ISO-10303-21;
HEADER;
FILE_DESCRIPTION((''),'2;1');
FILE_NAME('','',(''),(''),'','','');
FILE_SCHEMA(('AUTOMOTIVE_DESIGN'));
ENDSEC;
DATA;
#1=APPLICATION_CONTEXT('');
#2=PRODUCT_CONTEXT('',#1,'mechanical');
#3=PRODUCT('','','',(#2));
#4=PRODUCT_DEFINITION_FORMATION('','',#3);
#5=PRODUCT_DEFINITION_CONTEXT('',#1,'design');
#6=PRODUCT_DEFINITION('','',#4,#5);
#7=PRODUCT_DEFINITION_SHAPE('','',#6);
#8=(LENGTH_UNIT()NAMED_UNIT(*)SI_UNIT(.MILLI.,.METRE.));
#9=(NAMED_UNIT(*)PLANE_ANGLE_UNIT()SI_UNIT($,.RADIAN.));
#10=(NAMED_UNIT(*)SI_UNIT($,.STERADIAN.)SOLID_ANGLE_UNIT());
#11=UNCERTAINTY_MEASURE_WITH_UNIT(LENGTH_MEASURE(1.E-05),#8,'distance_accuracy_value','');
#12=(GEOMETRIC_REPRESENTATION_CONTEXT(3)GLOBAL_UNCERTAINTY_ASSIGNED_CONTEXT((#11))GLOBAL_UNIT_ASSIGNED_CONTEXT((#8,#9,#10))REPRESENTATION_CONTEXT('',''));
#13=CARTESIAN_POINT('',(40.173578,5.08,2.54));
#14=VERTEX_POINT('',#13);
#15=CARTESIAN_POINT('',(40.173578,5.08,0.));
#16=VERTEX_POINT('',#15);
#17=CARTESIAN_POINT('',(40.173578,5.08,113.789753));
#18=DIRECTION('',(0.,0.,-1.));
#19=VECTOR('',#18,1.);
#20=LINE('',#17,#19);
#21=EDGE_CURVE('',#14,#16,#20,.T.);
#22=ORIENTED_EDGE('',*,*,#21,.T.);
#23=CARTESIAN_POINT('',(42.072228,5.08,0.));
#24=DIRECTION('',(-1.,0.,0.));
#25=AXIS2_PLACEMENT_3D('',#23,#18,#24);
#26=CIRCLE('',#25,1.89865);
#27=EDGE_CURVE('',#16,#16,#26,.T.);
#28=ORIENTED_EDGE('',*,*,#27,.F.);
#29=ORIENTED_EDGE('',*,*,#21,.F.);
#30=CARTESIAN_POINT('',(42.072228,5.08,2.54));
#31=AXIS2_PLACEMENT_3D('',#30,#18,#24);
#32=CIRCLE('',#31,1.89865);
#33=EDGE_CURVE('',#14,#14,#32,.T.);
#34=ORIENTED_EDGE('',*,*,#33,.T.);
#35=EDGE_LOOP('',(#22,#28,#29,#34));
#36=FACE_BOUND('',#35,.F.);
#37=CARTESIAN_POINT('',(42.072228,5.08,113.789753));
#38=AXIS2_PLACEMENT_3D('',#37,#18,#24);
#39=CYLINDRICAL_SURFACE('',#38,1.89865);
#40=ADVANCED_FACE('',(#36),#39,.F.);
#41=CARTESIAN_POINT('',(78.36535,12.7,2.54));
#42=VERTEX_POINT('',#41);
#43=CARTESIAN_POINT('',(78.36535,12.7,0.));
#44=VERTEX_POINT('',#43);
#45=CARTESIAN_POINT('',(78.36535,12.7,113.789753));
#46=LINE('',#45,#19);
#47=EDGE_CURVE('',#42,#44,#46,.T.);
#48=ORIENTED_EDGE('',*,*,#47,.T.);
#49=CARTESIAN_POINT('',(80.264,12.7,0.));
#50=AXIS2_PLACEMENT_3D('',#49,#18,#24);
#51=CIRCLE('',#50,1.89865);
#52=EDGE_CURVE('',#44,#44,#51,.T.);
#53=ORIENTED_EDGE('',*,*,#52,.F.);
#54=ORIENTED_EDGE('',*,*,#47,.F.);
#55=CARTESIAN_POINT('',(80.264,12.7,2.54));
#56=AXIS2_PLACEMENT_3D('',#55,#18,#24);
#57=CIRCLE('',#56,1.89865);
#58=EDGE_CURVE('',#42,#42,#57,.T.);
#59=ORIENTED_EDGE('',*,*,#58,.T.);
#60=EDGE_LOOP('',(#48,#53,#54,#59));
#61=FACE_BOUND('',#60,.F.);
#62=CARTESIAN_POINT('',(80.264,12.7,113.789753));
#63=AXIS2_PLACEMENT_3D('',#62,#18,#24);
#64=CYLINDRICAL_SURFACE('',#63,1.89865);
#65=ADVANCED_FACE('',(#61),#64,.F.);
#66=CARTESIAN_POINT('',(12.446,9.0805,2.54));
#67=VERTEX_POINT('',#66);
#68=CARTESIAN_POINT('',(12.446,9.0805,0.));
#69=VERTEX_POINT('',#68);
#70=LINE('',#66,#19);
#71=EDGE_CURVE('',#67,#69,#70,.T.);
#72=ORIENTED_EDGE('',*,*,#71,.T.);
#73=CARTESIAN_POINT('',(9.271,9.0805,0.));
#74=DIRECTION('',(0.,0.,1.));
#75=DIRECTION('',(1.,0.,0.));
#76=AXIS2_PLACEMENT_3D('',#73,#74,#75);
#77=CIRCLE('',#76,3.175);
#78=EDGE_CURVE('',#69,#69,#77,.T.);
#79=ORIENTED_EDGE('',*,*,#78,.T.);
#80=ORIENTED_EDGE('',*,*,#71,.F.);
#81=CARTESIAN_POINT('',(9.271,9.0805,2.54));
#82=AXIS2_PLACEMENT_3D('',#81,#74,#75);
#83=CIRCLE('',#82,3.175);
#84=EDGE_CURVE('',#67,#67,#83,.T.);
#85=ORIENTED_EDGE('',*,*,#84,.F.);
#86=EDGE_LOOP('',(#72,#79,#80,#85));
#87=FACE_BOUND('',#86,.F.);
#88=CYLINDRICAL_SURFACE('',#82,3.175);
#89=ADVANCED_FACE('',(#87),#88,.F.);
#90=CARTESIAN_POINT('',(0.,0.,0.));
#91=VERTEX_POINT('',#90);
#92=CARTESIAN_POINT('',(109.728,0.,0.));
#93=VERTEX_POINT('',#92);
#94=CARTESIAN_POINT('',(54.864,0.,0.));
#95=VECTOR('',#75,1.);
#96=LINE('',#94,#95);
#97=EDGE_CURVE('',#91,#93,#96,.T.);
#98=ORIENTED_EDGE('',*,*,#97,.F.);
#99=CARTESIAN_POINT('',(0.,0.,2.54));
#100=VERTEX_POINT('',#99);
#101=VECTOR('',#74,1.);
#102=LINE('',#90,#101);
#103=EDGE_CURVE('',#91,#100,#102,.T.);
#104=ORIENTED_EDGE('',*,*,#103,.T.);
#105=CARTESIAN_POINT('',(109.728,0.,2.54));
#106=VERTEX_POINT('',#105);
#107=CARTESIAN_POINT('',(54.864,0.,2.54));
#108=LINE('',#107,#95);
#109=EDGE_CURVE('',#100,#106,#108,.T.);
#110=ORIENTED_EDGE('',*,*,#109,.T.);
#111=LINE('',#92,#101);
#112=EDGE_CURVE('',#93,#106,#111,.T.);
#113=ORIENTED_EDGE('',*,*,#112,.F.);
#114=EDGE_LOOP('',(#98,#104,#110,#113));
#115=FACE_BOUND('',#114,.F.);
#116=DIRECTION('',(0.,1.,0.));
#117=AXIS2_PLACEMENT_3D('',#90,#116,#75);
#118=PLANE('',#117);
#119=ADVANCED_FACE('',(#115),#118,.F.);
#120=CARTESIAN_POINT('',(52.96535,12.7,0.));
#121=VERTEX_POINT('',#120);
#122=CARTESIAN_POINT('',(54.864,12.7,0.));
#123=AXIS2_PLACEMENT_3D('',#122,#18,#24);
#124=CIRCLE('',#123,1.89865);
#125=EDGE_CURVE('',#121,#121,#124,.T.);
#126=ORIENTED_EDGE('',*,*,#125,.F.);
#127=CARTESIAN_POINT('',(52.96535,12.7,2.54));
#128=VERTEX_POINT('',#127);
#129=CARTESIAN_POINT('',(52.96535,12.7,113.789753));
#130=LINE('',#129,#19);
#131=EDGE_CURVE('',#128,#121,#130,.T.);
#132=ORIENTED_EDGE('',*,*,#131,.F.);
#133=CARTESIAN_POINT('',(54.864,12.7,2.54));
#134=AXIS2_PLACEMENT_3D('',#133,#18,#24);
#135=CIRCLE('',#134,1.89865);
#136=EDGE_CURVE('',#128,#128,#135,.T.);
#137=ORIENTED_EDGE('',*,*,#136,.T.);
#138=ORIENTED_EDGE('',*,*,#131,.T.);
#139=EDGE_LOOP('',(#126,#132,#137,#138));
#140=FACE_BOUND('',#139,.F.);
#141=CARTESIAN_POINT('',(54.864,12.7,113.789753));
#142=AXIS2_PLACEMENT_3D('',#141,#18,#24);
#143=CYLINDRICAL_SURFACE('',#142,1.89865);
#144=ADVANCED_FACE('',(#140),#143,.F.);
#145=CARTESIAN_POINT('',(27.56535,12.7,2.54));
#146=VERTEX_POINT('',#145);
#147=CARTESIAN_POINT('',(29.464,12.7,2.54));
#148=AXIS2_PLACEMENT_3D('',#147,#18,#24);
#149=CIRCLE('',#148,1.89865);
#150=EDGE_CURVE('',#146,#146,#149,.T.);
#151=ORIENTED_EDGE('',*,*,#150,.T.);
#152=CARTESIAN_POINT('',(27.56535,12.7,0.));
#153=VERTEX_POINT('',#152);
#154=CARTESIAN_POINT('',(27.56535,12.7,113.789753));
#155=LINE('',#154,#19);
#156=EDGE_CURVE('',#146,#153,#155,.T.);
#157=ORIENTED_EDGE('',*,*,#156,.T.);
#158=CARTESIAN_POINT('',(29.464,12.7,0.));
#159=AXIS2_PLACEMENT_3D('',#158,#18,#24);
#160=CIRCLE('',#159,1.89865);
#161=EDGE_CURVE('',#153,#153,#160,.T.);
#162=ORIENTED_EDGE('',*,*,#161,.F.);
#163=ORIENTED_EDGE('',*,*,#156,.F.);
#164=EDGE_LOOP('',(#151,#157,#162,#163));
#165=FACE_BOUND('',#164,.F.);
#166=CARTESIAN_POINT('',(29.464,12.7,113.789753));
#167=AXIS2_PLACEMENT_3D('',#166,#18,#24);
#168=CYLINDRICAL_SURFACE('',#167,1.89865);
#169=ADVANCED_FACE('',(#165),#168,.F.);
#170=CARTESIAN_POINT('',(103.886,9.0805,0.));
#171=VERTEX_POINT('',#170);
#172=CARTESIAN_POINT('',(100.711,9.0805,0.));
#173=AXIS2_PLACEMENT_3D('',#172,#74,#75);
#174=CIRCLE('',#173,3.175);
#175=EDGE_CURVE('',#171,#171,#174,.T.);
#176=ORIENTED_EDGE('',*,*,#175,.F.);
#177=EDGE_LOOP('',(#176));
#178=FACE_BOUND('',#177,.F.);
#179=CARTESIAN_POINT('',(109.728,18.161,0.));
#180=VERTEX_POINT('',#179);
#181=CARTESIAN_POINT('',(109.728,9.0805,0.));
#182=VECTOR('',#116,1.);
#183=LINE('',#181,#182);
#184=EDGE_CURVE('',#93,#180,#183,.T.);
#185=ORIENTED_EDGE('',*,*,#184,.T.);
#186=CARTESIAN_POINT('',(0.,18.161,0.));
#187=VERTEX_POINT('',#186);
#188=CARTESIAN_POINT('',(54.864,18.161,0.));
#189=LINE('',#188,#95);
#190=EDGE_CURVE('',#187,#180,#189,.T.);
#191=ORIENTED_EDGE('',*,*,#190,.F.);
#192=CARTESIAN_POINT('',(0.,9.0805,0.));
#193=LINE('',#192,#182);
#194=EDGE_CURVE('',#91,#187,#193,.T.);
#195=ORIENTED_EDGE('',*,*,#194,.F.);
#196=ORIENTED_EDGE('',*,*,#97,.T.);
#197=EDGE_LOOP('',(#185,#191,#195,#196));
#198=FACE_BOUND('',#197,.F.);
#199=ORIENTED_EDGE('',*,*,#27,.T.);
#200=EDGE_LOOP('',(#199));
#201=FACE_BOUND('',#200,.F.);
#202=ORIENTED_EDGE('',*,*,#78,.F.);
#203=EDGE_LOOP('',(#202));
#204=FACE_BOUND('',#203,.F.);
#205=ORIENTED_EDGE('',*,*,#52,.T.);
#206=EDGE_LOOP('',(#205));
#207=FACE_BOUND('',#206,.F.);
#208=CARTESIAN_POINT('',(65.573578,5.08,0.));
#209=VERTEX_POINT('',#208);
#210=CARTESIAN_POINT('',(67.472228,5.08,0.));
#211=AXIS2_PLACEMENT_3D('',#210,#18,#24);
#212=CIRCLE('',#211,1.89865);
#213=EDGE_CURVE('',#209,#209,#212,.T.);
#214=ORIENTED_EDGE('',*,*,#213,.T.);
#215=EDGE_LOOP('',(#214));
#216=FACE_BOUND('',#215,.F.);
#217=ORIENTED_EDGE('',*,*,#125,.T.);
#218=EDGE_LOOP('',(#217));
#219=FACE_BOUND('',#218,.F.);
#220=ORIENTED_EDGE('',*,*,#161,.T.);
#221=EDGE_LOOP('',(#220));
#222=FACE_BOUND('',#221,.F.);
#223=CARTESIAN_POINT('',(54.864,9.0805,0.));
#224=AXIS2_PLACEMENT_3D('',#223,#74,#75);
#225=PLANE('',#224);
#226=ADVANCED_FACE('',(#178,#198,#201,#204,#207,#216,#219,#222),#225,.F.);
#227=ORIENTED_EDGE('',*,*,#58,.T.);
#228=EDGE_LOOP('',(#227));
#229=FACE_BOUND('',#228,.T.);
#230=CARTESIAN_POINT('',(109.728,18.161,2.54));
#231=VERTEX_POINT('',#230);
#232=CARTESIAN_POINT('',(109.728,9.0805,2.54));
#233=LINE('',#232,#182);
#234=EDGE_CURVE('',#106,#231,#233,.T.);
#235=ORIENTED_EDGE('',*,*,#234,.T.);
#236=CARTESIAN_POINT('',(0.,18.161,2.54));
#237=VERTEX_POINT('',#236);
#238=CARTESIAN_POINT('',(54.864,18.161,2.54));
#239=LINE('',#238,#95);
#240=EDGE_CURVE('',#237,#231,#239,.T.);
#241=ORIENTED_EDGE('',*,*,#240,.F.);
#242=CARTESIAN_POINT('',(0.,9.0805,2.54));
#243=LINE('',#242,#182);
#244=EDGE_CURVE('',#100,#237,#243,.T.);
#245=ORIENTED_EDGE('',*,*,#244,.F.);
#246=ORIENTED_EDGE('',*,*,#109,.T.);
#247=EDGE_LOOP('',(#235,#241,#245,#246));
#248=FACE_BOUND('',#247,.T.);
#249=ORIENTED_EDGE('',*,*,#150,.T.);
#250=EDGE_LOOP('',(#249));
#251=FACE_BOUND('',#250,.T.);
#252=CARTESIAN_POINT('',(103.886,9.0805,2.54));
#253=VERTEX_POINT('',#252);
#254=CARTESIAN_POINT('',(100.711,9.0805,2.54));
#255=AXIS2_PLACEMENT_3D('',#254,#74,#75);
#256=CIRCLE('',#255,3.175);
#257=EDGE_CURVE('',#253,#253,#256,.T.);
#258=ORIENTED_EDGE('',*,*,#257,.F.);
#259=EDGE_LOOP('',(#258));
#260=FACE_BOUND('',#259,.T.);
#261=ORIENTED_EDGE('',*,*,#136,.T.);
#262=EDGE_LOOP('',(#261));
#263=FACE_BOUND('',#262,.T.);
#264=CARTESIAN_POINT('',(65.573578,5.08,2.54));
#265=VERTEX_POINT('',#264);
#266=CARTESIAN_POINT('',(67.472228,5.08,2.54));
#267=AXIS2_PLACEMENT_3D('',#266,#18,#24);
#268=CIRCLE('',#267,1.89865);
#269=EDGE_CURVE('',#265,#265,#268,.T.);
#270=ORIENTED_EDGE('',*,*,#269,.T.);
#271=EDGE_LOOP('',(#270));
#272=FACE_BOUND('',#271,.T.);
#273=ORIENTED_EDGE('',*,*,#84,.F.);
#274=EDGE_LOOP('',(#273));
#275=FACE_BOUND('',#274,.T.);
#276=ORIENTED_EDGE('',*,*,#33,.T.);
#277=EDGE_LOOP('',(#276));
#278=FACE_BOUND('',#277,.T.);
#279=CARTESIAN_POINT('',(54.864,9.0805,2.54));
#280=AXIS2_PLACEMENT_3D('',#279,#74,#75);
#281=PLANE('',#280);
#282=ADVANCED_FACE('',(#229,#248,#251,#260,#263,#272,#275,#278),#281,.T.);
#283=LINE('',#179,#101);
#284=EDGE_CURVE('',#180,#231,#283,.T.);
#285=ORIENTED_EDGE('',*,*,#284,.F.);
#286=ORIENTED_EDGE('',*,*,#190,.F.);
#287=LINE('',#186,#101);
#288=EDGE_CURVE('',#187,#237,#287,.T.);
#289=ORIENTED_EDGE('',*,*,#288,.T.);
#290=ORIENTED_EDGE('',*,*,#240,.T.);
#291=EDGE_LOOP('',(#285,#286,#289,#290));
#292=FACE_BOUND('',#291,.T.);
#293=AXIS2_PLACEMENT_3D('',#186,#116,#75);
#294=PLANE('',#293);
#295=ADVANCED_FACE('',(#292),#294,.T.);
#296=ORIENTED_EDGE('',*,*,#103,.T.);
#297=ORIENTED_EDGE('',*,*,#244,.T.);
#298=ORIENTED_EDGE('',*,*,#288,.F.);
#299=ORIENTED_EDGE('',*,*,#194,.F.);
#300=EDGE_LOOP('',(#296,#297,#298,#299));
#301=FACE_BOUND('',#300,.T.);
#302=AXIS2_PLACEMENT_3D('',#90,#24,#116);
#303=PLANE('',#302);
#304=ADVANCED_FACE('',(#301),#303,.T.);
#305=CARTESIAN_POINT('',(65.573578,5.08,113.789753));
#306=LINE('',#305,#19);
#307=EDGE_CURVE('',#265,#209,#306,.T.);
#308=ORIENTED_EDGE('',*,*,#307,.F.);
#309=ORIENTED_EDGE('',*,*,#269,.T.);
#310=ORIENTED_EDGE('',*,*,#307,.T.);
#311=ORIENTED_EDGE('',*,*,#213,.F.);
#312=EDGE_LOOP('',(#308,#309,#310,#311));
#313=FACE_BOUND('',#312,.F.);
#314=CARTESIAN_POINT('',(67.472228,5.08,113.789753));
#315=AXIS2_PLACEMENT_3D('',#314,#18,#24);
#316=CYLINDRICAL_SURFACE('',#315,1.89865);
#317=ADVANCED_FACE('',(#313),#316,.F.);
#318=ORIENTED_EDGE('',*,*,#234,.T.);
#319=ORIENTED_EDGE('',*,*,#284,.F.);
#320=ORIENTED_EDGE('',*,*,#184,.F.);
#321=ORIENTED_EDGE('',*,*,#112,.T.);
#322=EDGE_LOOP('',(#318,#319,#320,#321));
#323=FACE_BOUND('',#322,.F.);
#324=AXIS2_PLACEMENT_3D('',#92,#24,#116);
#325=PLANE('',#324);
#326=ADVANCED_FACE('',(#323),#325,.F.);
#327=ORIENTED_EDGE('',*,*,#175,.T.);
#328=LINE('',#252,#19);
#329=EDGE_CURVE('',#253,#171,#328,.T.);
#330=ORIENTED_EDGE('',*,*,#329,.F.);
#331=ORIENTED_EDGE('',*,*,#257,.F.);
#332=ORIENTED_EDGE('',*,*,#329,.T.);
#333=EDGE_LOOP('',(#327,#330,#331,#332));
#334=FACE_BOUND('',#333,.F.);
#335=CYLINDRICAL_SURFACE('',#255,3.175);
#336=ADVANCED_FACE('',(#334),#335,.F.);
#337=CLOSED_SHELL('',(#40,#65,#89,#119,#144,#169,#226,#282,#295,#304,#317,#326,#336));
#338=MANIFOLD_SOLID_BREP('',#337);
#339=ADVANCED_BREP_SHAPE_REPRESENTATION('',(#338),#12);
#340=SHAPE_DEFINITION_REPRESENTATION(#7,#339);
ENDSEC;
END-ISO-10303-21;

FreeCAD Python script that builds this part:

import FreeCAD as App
import Part
import Sketcher
Q = App.Units.Quantity

doc = App.newDocument("Part")
params = doc.addObject("Spreadsheet::Sheet", "Params")
for row, (alias, value) in enumerate([
    ("sketch1_width", "4.32 in"),
    ("sketch1_height", "0.715 in"),
    ("pad1_length", "0.1 in"),
    ("sketch2_diameter", "0.25 in"),
    ("hole_diameter", "0.1495 in"),
], start=1):
    params.set(f"A{row}", alias)
    params.set(f"B{row}", "=" + value)
    params.setAlias(f"B{row}", alias)

body = doc.addObject("PartDesign::Body", "Body")

# Sketch on XY plane
sketch1 = body.newObject("Sketcher::SketchObject", "Sketch")
sketch1.AttachmentSupport = (doc.getObject("XY_Plane"), [""])
sketch1.MapMode = "FlatFace"
sketch1.addGeometry([
    Part.LineSegment(App.Vector(0, 18.161, 0), App.Vector(0, 0, 0)),
    Part.LineSegment(App.Vector(0, 0, 0), App.Vector(109.728, 0, 0)),
    Part.LineSegment(App.Vector(109.728, 0, 0), App.Vector(109.728, 18.161, 0)),
    Part.LineSegment(App.Vector(109.728, 18.161, 0), App.Vector(0, 18.161, 0)),
], False)
sketch1.addConstraint([
    Sketcher.Constraint("Coincident", 0, 2, 1, 1),
    Sketcher.Constraint("Coincident", 1, 2, 2, 1),
    Sketcher.Constraint("Coincident", 2, 2, 3, 1),
    Sketcher.Constraint("Coincident", 3, 2, 0, 1),
    Sketcher.Constraint("Vertical", 0),
    Sketcher.Constraint("Horizontal", 1),
    Sketcher.Constraint("Vertical", 2),
    Sketcher.Constraint("Horizontal", 3),
    Sketcher.Constraint("Coincident", 0, 2, -1, 1),
    Sketcher.Constraint("DistanceX", 1, 1, 1, 2, Q("4.32 in")),
    Sketcher.Constraint("DistanceY", 0, 2, 0, 1, Q("0.715 in")),
])
sketch1.setExpression("Constraints[9]", "Params.sketch1_width")
sketch1.setExpression("Constraints[10]", "Params.sketch1_height")
pad1 = body.newObject("PartDesign::Pad", "Pad")
pad1.Profile = sketch1
pad1.setExpression("Length", "Params.pad1_length")

# Sketch on XY plane
sketch2 = body.newObject("Sketcher::SketchObject", "Sketch001")
sketch2.AttachmentSupport = (doc.getObject("XY_Plane"), [""])
sketch2.MapMode = "FlatFace"
sketch2.AttachmentOffset = App.Placement(App.Vector(0, 0, 0.1 * 25.4), App.Rotation())
sketch2.addGeometry([
    Part.Circle(App.Vector(9.271, 9.0805, 0), App.Vector(0, 0, 1), 3.175),
    Part.Circle(App.Vector(100.711, 9.0805, 0), App.Vector(0, 0, 1), 3.175),
], False)
sketch2.addConstraint([
    Sketcher.Constraint("Equal", 0, 1),
    Sketcher.Constraint("Horizontal", 0, 3, 1, 3),
    Sketcher.Constraint("Diameter", 0, Q("0.25 in")),
    Sketcher.Constraint("DistanceX", 0, 3, 1, 3, Q("3.6 in")),
    Sketcher.Constraint("DistanceX", -1, 1, 0, 3, Q("0.365 in")),
    Sketcher.Constraint("DistanceY", -1, 1, 0, 3, Q("0.3575 in")),
])
sketch2.setExpression("Constraints[2]", "Params.sketch2_diameter")
pocket1 = body.newObject("PartDesign::Pocket", "Pocket")
pocket1.Profile = sketch2
pocket1.Type = "ThroughAll"

# Sketch on XY plane
sketch3 = body.newObject("Sketcher::SketchObject", "Sketch002")
sketch3.AttachmentSupport = (doc.getObject("XY_Plane"), [""])
sketch3.MapMode = "FlatFace"
sketch3.AttachmentOffset = App.Placement(App.Vector(0, 0, 0.1 * 25.4), App.Rotation())
sketch3.addGeometry([
    Part.Circle(App.Vector(29.464, 12.7, 0), App.Vector(0, 0, 1), 1.89865),  # 0
    Part.Circle(App.Vector(42.072228, 5.08, 0), App.Vector(0, 0, 1), 1.89865),  # 1
    Part.Circle(App.Vector(54.864, 12.7, 0), App.Vector(0, 0, 1), 1.89865),  # 2
    Part.Circle(App.Vector(67.472228, 5.08, 0), App.Vector(0, 0, 1), 1.89865),  # 3
    Part.Circle(App.Vector(80.264, 12.7, 0), App.Vector(0, 0, 1), 1.89865),  # 4
], False)
sketch3.addConstraint([
    Sketcher.Constraint("Equal", 0, 1),
    Sketcher.Constraint("Equal", 1, 2),
    Sketcher.Constraint("Equal", 2, 3),
    Sketcher.Constraint("Equal", 3, 4),
    Sketcher.Constraint("Horizontal", 0, 3, 2, 3),
    Sketcher.Constraint("Horizontal", 1, 3, 3, 3),
    Sketcher.Constraint("Horizontal", 2, 3, 4, 3),
    Sketcher.Constraint("DistanceX", 0, 3, 2, 3, Q("1 in")),
    Sketcher.Constraint("DistanceX", 1, 3, 3, 3, Q("1 in")),
    Sketcher.Constraint("DistanceX", 2, 3, 4, 3, Q("1 in")),
    Sketcher.Constraint("Diameter", 0, Q("0.1495 in")),
    Sketcher.Constraint("DistanceY", -1, 1, 0, 3, Q("0.5 in")),
    Sketcher.Constraint("DistanceY", -1, 1, 1, 3, Q("0.2 in")),
    Sketcher.Constraint("DistanceX", -1, 1, 0, 3, Q("1.16 in")),
    Sketcher.Constraint("DistanceX", -1, 1, 1, 3, 42.072228),
])
doc.recompute()
hole = body.newObject("PartDesign::Hole", "Hole")
hole.Profile = sketch3
hole.ThreadType = "None"
hole.setExpression("Diameter", "Params.hole_diameter")
hole.DepthType = "ThroughAll"

doc.recompute()
